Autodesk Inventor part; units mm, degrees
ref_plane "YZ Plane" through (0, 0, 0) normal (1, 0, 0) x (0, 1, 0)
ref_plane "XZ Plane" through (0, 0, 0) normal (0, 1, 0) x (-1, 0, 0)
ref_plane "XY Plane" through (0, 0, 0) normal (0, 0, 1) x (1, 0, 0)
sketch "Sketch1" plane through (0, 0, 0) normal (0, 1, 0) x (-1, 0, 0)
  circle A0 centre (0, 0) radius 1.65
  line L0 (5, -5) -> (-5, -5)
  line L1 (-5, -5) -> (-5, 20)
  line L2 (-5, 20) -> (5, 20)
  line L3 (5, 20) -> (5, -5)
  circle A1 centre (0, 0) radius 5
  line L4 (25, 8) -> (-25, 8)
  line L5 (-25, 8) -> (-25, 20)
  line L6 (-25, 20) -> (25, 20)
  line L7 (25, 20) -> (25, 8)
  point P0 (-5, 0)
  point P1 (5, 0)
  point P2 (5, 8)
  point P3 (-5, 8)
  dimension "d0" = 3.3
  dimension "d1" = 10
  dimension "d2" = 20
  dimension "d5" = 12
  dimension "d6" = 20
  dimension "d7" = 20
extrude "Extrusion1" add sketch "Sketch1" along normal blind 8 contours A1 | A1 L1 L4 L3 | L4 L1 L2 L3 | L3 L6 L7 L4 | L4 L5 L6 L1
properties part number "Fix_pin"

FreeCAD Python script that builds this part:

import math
import FreeCAD as App
import Part
import Sketcher
from FreeCAD import Vector

doc = App.newDocument("Part")
body = doc.addObject("PartDesign::Body", "Body")

# Sketch on XZ plane
sketch1 = doc.addObject("Sketcher::SketchObject", "Sketch")
body.addObject(sketch1)
sketch1.AttachmentSupport = (doc.XZ_Plane, [""])
sketch1.MapMode = "FlatFace"
sketch1.addGeometry([
    Part.ArcOfCircle(Part.Circle(Vector(0, 0, 0), Vector(0, 0, 1), 5), math.radians(180), math.radians(360)),  # 0
    Part.LineSegment(Vector(-5, 0, 0), Vector(-5, 8, 0)),  # 1
    Part.LineSegment(Vector(-5, 8, 0), Vector(-25, 8, 0)),  # 2
    Part.LineSegment(Vector(-25, 8, 0), Vector(-25, 20, 0)),  # 3
    Part.LineSegment(Vector(-25, 20, 0), Vector(25, 20, 0)),  # 4
    Part.LineSegment(Vector(25, 20, 0), Vector(25, 8, 0)),  # 5
    Part.LineSegment(Vector(25, 8, 0), Vector(5, 8, 0)),  # 6
    Part.LineSegment(Vector(5, 8, 0), Vector(5, 0, 0)),  # 7
    Part.Circle(Vector(0, 0, 0), Vector(0, 0, 1), 1.6),  # 8
], False)
sketch1.addConstraint([
    Sketcher.Constraint("Tangent", 0, 1, 1, 1),
    Sketcher.Constraint("Coincident", 1, 2, 2, 1),
    Sketcher.Constraint("Coincident", 2, 2, 3, 1),
    Sketcher.Constraint("Coincident", 3, 2, 4, 1),
    Sketcher.Constraint("Coincident", 4, 2, 5, 1),
    Sketcher.Constraint("Coincident", 5, 2, 6, 1),
    Sketcher.Constraint("Coincident", 6, 2, 7, 1),
    Sketcher.Constraint("Tangent", 7, 2, 0, 2),
    Sketcher.Constraint("Vertical", 1),
    Sketcher.Constraint("Horizontal", 2),
    Sketcher.Constraint("Vertical", 3),
    Sketcher.Constraint("Horizontal", 4),
    Sketcher.Constraint("Vertical", 5),
    Sketcher.Constraint("Horizontal", 6),
    Sketcher.Constraint("Vertical", 7),
    Sketcher.Constraint("Coincident", 0, 3, -1, 1),
    Sketcher.Constraint("Coincident", 8, 3, -1, 1),
    Sketcher.Constraint("Symmetric", 2, 2, 5, 2, -2),
    Sketcher.Constraint("Radius", 0, 5.0),
    Sketcher.Constraint("Diameter", 8, 3.3),
    Sketcher.Constraint("DistanceX", 2, 2, 2, 1, 20.0),
    Sketcher.Constraint("DistanceY", 3, 1, 3, 2, 12.0),
    Sketcher.Constraint("DistanceY", -1, 1, 3, 2, 20.0),
])
pad1 = doc.addObject("PartDesign::Pad", "Pad")
body.addObject(pad1)
pad1.Profile = sketch1
pad1.Length = 8
pad1.Reversed = True

doc.recompute()
